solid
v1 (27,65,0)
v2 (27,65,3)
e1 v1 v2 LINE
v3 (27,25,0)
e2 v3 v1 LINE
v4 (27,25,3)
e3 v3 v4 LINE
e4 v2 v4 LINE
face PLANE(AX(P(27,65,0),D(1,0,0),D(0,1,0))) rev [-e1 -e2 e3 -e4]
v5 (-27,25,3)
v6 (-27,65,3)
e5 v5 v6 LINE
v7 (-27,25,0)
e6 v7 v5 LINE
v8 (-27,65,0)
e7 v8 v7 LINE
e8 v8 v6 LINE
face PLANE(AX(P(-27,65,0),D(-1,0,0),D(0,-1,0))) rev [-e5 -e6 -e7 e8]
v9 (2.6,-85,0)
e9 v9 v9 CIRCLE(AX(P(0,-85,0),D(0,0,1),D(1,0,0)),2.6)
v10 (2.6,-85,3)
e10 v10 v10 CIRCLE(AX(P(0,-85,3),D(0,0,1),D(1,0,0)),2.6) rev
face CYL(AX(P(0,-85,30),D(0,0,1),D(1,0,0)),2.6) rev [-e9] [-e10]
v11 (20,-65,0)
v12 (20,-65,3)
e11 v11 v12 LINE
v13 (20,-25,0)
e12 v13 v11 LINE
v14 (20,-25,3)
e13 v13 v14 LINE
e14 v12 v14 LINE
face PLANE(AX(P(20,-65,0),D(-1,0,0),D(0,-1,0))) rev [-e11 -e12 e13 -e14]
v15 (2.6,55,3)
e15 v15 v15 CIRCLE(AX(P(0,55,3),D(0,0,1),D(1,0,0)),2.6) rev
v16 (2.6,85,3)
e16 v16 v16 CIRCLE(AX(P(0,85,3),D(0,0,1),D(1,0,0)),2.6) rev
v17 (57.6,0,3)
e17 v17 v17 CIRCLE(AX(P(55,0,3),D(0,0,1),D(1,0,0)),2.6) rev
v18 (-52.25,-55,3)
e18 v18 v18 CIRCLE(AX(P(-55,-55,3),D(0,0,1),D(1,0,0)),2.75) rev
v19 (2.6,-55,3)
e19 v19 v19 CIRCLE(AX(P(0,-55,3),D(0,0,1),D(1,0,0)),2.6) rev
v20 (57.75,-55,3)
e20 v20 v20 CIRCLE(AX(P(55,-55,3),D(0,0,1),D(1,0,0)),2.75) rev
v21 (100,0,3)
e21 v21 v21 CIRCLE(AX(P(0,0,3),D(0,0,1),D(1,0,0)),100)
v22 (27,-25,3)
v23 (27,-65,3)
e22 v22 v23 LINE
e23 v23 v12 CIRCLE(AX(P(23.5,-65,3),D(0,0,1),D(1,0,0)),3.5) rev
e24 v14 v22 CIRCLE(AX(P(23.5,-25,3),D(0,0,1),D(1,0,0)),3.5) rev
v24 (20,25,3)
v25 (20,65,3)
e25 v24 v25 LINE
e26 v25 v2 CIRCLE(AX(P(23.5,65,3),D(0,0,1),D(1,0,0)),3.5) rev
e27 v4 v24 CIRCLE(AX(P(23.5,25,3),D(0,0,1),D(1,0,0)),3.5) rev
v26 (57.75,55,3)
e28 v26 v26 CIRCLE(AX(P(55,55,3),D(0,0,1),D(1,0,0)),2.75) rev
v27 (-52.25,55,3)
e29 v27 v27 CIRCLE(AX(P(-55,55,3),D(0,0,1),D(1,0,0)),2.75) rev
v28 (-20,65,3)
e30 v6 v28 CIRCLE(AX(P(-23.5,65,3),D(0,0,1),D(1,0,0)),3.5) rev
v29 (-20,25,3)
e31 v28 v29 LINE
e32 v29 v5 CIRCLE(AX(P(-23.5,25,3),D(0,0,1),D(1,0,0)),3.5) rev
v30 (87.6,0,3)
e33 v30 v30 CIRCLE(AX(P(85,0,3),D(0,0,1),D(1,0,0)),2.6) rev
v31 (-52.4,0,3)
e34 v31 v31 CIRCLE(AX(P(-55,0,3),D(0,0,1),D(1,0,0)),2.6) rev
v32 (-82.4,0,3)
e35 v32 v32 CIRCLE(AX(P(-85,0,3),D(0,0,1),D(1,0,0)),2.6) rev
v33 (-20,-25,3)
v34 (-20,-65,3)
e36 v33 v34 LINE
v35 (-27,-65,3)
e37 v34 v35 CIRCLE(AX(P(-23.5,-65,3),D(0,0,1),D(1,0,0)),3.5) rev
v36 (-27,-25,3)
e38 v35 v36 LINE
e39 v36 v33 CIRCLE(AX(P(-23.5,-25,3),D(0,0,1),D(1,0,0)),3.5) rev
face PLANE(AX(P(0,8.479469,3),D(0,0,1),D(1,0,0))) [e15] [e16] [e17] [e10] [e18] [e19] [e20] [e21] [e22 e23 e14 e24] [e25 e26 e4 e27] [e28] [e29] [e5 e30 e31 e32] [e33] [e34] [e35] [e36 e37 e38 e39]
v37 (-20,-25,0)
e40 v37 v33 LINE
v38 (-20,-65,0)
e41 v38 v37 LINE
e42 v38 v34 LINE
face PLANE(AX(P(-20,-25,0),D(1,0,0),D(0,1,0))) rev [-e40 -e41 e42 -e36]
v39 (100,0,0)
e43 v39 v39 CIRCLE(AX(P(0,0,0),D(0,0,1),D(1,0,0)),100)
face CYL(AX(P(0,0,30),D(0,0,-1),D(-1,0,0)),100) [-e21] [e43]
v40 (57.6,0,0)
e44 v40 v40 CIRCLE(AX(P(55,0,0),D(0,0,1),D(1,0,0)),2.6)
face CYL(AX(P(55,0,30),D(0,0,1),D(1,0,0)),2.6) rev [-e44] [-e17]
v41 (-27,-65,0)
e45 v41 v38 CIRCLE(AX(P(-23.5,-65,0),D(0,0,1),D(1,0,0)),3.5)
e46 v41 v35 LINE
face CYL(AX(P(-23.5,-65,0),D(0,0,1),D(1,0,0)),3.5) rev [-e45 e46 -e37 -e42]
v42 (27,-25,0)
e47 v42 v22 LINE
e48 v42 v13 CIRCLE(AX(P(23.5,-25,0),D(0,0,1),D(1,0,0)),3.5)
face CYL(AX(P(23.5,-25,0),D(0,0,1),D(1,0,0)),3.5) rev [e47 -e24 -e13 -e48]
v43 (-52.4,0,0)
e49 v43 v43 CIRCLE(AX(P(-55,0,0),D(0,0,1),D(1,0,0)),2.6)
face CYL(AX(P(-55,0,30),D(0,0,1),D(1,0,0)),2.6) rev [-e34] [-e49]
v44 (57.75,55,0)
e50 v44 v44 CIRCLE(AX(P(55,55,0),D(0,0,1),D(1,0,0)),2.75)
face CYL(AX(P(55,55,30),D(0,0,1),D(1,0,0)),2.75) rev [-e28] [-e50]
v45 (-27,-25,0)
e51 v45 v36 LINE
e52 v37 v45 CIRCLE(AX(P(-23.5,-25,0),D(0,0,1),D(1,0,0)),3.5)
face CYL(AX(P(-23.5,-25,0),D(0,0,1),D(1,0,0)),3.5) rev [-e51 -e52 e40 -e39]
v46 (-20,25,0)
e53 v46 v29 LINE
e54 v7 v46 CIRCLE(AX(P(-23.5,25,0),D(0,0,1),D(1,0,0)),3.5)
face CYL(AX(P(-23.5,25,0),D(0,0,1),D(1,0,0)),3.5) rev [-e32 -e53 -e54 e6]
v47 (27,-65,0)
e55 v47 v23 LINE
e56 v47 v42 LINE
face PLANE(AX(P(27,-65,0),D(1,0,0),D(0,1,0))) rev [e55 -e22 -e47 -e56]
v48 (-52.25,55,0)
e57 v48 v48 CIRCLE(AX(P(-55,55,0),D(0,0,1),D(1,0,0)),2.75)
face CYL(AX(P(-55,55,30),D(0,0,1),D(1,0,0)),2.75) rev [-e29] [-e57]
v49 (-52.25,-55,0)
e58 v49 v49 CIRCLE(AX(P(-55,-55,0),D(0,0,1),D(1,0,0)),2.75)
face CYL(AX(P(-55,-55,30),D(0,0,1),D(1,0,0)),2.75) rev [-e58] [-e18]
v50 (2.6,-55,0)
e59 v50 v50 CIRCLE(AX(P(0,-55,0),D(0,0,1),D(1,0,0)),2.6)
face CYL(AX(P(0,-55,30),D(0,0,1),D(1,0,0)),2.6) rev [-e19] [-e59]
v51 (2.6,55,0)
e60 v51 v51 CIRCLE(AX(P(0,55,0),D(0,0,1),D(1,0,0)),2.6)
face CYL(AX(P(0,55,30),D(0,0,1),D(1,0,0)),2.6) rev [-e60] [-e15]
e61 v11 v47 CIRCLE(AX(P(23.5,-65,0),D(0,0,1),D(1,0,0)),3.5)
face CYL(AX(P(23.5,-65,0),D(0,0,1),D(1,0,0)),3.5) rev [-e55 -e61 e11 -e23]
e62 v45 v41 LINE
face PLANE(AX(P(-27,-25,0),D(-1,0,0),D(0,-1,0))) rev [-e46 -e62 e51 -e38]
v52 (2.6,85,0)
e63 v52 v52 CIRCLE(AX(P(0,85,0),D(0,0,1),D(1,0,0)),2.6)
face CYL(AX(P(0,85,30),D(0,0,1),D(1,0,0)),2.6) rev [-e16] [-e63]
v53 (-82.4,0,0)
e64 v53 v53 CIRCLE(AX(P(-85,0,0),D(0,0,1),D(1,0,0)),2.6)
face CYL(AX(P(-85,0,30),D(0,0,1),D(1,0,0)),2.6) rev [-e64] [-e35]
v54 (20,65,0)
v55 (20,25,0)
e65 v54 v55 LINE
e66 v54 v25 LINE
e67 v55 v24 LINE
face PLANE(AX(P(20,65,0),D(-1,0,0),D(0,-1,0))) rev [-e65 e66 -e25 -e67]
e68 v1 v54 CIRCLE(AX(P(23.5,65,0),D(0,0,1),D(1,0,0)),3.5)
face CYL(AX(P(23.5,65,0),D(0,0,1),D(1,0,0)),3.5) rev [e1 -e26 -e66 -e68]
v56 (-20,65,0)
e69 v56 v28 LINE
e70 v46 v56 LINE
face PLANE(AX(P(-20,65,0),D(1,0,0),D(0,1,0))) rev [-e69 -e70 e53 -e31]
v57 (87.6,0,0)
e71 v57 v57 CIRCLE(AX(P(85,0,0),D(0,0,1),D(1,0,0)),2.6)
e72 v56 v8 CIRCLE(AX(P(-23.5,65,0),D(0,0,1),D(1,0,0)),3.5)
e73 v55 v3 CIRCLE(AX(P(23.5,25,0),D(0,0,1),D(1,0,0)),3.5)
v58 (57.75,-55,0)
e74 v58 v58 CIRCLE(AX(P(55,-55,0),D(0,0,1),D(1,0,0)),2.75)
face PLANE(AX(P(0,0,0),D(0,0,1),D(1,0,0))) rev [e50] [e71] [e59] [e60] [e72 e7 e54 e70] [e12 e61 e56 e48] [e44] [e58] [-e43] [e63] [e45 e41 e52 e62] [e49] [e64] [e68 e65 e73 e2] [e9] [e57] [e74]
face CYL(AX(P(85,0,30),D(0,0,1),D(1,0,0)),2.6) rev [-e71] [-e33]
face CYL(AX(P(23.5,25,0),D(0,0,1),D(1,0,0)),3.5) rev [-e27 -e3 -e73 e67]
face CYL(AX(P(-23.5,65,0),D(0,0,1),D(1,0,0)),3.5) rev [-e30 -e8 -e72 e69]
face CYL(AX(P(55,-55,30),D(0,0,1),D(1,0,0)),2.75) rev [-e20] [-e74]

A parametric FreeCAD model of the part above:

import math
import FreeCAD as App
import Part
import Sketcher

V = App.Vector

doc = App.newDocument("Part")
params = doc.addObject("Spreadsheet::Sheet", "Params")
for row, (alias, value) in enumerate([
    ("sketch1_diameter", "200 mm"),
    ("pad1_length", "30 mm"),
    ("sketch2_diameter", "5.2 mm"),
    ("hole_diameter", "5.2 mm"),
    ("sketch3_radius", "3.5 mm"),
    ("sketch3_height", "40 mm"),
    ("sketch4_diameter", "5.5 mm"),
    ("hole2_diameter", "5.5 mm"),
    ("pocket2_length", "27 mm"),
], start=1):
    params.set(f"A{row}", alias)
    params.set(f"B{row}", "=" + value)
    params.setAlias(f"B{row}", alias)

body = doc.addObject("PartDesign::Body", "Body")

sketch1 = doc.addObject("Sketcher::SketchObject", "Sketch")
body.addObject(sketch1)
sketch1.AttachmentSupport = (doc.XY_Plane, [""])
sketch1.MapMode = "FlatFace"
sketch1.addGeometry(Part.Circle(V(0, 0, 0), V(0, 0, 1), 100), False)
sketch1.addConstraint(Sketcher.Constraint("Coincident", 0, 3, -1, 1))
sketch1.addConstraint(Sketcher.Constraint("Diameter", 0, 200.0))
sketch1.setExpression("Constraints[1]", "Params.sketch1_diameter")
pad1 = doc.addObject("PartDesign::Pad", "Pad")
body.addObject(pad1)
pad1.Profile = sketch1
pad1.setExpression("Length", "Params.pad1_length")

sketch2 = doc.addObject("Sketcher::SketchObject", "Sketch001")
body.addObject(sketch2)
sketch2.AttachmentSupport = (doc.XY_Plane, [""])
sketch2.MapMode = "FlatFace"
sketch2.AttachmentOffset = App.Placement(V(0, 0, 30), App.Rotation())
sketch2.addGeometry(Part.Circle(V(-85, 0, 0), V(0, 0, 1), 2.6), False)
sketch2.addGeometry(Part.Circle(V(-55, 0, 0), V(0, 0, 1), 2.6), False)
sketch2.addGeometry(Part.Circle(V(0, 55, 0), V(0, 0, 1), 2.6), False)
sketch2.addGeometry(Part.Circle(V(0, 85, 0), V(0, 0, 1), 2.6), False)
sketch2.addGeometry(Part.Circle(V(55, 0, 0), V(0, 0, 1), 2.6), False)
sketch2.addGeometry(Part.Circle(V(85, 0, 0), V(0, 0, 1), 2.6), False)
sketch2.addGeometry(Part.Circle(V(0, -55, 0), V(0, 0, 1), 2.6), False)
sketch2.addGeometry(Part.Circle(V(0, -85, 0), V(0, 0, 1), 2.6), False)
sketch2.addConstraint(Sketcher.Constraint("Equal", 0, 1))
sketch2.addConstraint(Sketcher.Constraint("Equal", 1, 2))
sketch2.addConstraint(Sketcher.Constraint("Equal", 2, 3))
sketch2.addConstraint(Sketcher.Constraint("Equal", 3, 4))
sketch2.addConstraint(Sketcher.Constraint("Equal", 4, 5))
sketch2.addConstraint(Sketcher.Constraint("Equal", 5, 6))
sketch2.addConstraint(Sketcher.Constraint("Equal", 6, 7))
sketch2.addConstraint(Sketcher.Constraint("Symmetric", 1, 3, 4, 3, -1, 1))
sketch2.addConstraint(Sketcher.Constraint("Symmetric", 0, 3, 5, 3, -1, 1))
sketch2.addConstraint(Sketcher.Constraint("Symmetric", 2, 3, 6, 3, -1, 1))
sketch2.addConstraint(Sketcher.Constraint("Symmetric", 3, 3, 7, 3, -1, 1))
sketch2.addConstraint(Sketcher.Constraint("PointOnObject", 0, 3, -1))
sketch2.addConstraint(Sketcher.Constraint("PointOnObject", 1, 3, -1))
sketch2.addConstraint(Sketcher.Constraint("PointOnObject", 2, 3, -2))
sketch2.addConstraint(Sketcher.Constraint("PointOnObject", 3, 3, -2))
sketch2.addConstraint(Sketcher.Constraint("Diameter", 0, 5.2))
sketch2.addConstraint(Sketcher.Constraint("DistanceX", 0, 3, -1, 1, 85.0))
sketch2.addConstraint(Sketcher.Constraint("DistanceX", 1, 3, -1, 1, 55.0))
sketch2.addConstraint(Sketcher.Constraint("DistanceY", -1, 1, 2, 3, 55.0))
sketch2.addConstraint(Sketcher.Constraint("DistanceY", -1, 1, 3, 3, 85.0))
sketch2.setExpression("Constraints[15]", "Params.sketch2_diameter")
doc.recompute()
hole = doc.addObject("PartDesign::Hole", "Hole")
body.addObject(hole)
hole.Profile = sketch2
hole.ThreadType = "None"
hole.setExpression("Diameter", "Params.hole_diameter")
hole.DepthType = "ThroughAll"

sketch3 = doc.addObject("Sketcher::SketchObject", "Sketch002")
body.addObject(sketch3)
sketch3.AttachmentSupport = (doc.XY_Plane, [""])
sketch3.MapMode = "FlatFace"
sketch3.AttachmentOffset = App.Placement(V(0, 0, 30), App.Rotation())
sketch3.addGeometry(Part.LineSegment(V(27, 25, 0), V(27, 65, 0)), False)
sketch3.addGeometry(Part.ArcOfCircle(Part.Circle(V(23.5, 65, 0), V(0, 0, 1), 3.5), math.radians(0), math.radians(180)), False)
sketch3.addGeometry(Part.LineSegment(V(20, 65, 0), V(20, 25, 0)), False)
sketch3.addGeometry(Part.ArcOfCircle(Part.Circle(V(23.5, 25, 0), V(0, 0, 1), 3.5), math.radians(180), math.radians(360)), False)
sketch3.addGeometry(Part.LineSegment(V(-20, 25, 0), V(-20, 65, 0)), False)
sketch3.addGeometry(Part.ArcOfCircle(Part.Circle(V(-23.5, 65, 0), V(0, 0, 1), 3.5), math.radians(0), math.radians(180)), False)
sketch3.addGeometry(Part.LineSegment(V(-27, 65, 0), V(-27, 25, 0)), False)
sketch3.addGeometry(Part.ArcOfCircle(Part.Circle(V(-23.5, 25, 0), V(0, 0, 1), 3.5), math.radians(180), math.radians(360)), False)
sketch3.addGeometry(Part.LineSegment(V(-20, -65, 0), V(-20, -25, 0)), False)
sketch3.addGeometry(Part.ArcOfCircle(Part.Circle(V(-23.5, -25, 0), V(0, 0, 1), 3.5), math.radians(0), math.radians(180)), False)
sketch3.addGeometry(Part.LineSegment(V(-27, -25, 0), V(-27, -65, 0)), False)
sketch3.addGeometry(Part.ArcOfCircle(Part.Circle(V(-23.5, -65, 0), V(0, 0, 1), 3.5), math.radians(180), math.radians(360)), False)
sketch3.addGeometry(Part.LineSegment(V(20, -25, 0), V(20, -65, 0)), False)
sketch3.addGeometry(Part.ArcOfCircle(Part.Circle(V(23.5, -65, 0), V(0, 0, 1), 3.5), math.radians(180), math.radians(360)), False)
sketch3.addGeometry(Part.LineSegment(V(27, -65, 0), V(27, -25, 0)), False)
sketch3.addGeometry(Part.ArcOfCircle(Part.Circle(V(23.5, -25, 0), V(0, 0, 1), 3.5), math.radians(0), math.radians(180)), False)
sketch3.addConstraint(Sketcher.Constraint("Tangent", 0, 2, 1, 1))
sketch3.addConstraint(Sketcher.Constraint("Tangent", 1, 2, 2, 1))
sketch3.addConstraint(Sketcher.Constraint("Tangent", 2, 2, 3, 1))
sketch3.addConstraint(Sketcher.Constraint("Tangent", 3, 2, 0, 1))
sketch3.addConstraint(Sketcher.Constraint("Tangent", 4, 2, 5, 1))
sketch3.addConstraint(Sketcher.Constraint("Tangent", 5, 2, 6, 1))
sketch3.addConstraint(Sketcher.Constraint("Tangent", 6, 2, 7, 1))
sketch3.addConstraint(Sketcher.Constraint("Tangent", 7, 2, 4, 1))
sketch3.addConstraint(Sketcher.Constraint("Tangent", 8, 2, 9, 1))
sketch3.addConstraint(Sketcher.Constraint("Tangent", 9, 2, 10, 1))
sketch3.addConstraint(Sketcher.Constraint("Tangent", 10, 2, 11, 1))
sketch3.addConstraint(Sketcher.Constraint("Tangent", 11, 2, 8, 1))
sketch3.addConstraint(Sketcher.Constraint("Tangent", 12, 2, 13, 1))
sketch3.addConstraint(Sketcher.Constraint("Tangent", 13, 2, 14, 1))
sketch3.addConstraint(Sketcher.Constraint("Tangent", 14, 2, 15, 1))
sketch3.addConstraint(Sketcher.Constraint("Tangent", 15, 2, 12, 1))
sketch3.addConstraint(Sketcher.Constraint("Vertical", 0))
sketch3.addConstraint(Sketcher.Constraint("Vertical", 2))
sketch3.addConstraint(Sketcher.Constraint("Vertical", 4))
sketch3.addConstraint(Sketcher.Constraint("Vertical", 6))
sketch3.addConstraint(Sketcher.Constraint("Vertical", 8))
sketch3.addConstraint(Sketcher.Constraint("Vertical", 10))
sketch3.addConstraint(Sketcher.Constraint("Vertical", 12))
sketch3.addConstraint(Sketcher.Constraint("Vertical", 14))
sketch3.addConstraint(Sketcher.Constraint("Equal", 3, 5))
sketch3.addConstraint(Sketcher.Constraint("Equal", 7, 9))
sketch3.addConstraint(Sketcher.Constraint("Equal", 11, 13))
sketch3.addConstraint(Sketcher.Constraint("Symmetric", 3, 3, 9, 3, -1, 1))
sketch3.addConstraint(Sketcher.Constraint("Symmetric", 5, 3, 13, 3, -1, 1))
sketch3.addConstraint(Sketcher.Constraint("Symmetric", 1, 3, 5, 3, -2))
sketch3.addConstraint(Sketcher.Constraint("Horizontal", 3, 3, 7, 3))
sketch3.addConstraint(Sketcher.Constraint("Horizontal", 11, 3, 13, 3))
sketch3.addConstraint(Sketcher.Constraint("Horizontal", 9, 3, 15, 3))
sketch3.addConstraint(Sketcher.Constraint("Radius", 1, 3.5))
sketch3.addConstraint(Sketcher.Constraint("DistanceY", 0, 1, 0, 2, 40.0))
sketch3.addConstraint(Sketcher.Constraint("DistanceY", -1, 1, 1, 3, 65.0))
sketch3.addConstraint(Sketcher.Constraint("DistanceX", -1, 1, 0, 2, 27.0))
sketch3.setExpression("Constraints[33]", "Params.sketch3_radius")
sketch3.setExpression("Constraints[34]", "Params.sketch3_height")
pocket1 = doc.addObject("PartDesign::Pocket", "Pocket")
body.addObject(pocket1)
pocket1.Profile = sketch3
pocket1.Type = "ThroughAll"

sketch4 = doc.addObject("Sketcher::SketchObject", "Sketch003")
body.addObject(sketch4)
sketch4.AttachmentSupport = (doc.XY_Plane, [""])
sketch4.MapMode = "FlatFace"
sketch4.AttachmentOffset = App.Placement(V(0, 0, 30), App.Rotation())
sketch4.addGeometry(Part.Circle(V(-55, 55, 0), V(0, 0, 1), 2.8), False)
sketch4.addGeometry(Part.Circle(V(55, 55, 0), V(0, 0, 1), 2.8), False)
sketch4.addGeometry(Part.Circle(V(55, -55, 0), V(0, 0, 1), 2.8), False)
sketch4.addGeometry(Part.Circle(V(-55, -55, 0), V(0, 0, 1), 2.8), False)
sketch4.addConstraint(Sketcher.Constraint("Equal", 0, 1))
sketch4.addConstraint(Sketcher.Constraint("Equal", 1, 2))
sketch4.addConstraint(Sketcher.Constraint("Equal", 2, 3))
sketch4.addConstraint(Sketcher.Constraint("Symmetric", 0, 3, 2, 3, -1, 1))
sketch4.addConstraint(Sketcher.Constraint("Symmetric", 1, 3, 3, 3, -1, 1))
sketch4.addConstraint(Sketcher.Constraint("Symmetric", 0, 3, 1, 3, -2))
sketch4.addConstraint(Sketcher.Constraint("Diameter", 0, 5.5))
sketch4.addConstraint(Sketcher.Constraint("DistanceX", 0, 3, -1, 1, 55.0))
sketch4.addConstraint(Sketcher.Constraint("DistanceY", -1, 1, 0, 3, 55.0))
sketch4.setExpression("Constraints[6]", "Params.sketch4_diameter")
doc.recompute()
hole2 = doc.addObject("PartDesign::Hole", "Hole001")
body.addObject(hole2)
hole2.Profile = sketch4
hole2.ThreadType = "None"
hole2.setExpression("Diameter", "Params.hole2_diameter")
hole2.DepthType = "ThroughAll"

sketch5 = doc.addObject("Sketcher::SketchObject", "Sketch004")
body.addObject(sketch5)
sketch5.AttachmentSupport = (doc.XY_Plane, [""])
sketch5.MapMode = "FlatFace"
sketch5.AttachmentOffset = App.Placement(V(0, 0, 30), App.Rotation())
sketch5.addGeometry(Part.Circle(V(0, 8, 0), V(0, 0, 1), 184), False)
sketch5.addConstraint(Sketcher.Constraint("PointOnObject", 0, 3, -2))
sketch5.addConstraint(Sketcher.Constraint("Diameter", 0, 367.075116))
sketch5.addConstraint(Sketcher.Constraint("DistanceY", -1, 1, 0, 3, 8.479469))
pocket2 = doc.addObject("PartDesign::Pocket", "Pocket001")
body.addObject(pocket2)
pocket2.Profile = sketch5
pocket2.setExpression("Length", "Params.pocket2_length")

doc.recompute()
